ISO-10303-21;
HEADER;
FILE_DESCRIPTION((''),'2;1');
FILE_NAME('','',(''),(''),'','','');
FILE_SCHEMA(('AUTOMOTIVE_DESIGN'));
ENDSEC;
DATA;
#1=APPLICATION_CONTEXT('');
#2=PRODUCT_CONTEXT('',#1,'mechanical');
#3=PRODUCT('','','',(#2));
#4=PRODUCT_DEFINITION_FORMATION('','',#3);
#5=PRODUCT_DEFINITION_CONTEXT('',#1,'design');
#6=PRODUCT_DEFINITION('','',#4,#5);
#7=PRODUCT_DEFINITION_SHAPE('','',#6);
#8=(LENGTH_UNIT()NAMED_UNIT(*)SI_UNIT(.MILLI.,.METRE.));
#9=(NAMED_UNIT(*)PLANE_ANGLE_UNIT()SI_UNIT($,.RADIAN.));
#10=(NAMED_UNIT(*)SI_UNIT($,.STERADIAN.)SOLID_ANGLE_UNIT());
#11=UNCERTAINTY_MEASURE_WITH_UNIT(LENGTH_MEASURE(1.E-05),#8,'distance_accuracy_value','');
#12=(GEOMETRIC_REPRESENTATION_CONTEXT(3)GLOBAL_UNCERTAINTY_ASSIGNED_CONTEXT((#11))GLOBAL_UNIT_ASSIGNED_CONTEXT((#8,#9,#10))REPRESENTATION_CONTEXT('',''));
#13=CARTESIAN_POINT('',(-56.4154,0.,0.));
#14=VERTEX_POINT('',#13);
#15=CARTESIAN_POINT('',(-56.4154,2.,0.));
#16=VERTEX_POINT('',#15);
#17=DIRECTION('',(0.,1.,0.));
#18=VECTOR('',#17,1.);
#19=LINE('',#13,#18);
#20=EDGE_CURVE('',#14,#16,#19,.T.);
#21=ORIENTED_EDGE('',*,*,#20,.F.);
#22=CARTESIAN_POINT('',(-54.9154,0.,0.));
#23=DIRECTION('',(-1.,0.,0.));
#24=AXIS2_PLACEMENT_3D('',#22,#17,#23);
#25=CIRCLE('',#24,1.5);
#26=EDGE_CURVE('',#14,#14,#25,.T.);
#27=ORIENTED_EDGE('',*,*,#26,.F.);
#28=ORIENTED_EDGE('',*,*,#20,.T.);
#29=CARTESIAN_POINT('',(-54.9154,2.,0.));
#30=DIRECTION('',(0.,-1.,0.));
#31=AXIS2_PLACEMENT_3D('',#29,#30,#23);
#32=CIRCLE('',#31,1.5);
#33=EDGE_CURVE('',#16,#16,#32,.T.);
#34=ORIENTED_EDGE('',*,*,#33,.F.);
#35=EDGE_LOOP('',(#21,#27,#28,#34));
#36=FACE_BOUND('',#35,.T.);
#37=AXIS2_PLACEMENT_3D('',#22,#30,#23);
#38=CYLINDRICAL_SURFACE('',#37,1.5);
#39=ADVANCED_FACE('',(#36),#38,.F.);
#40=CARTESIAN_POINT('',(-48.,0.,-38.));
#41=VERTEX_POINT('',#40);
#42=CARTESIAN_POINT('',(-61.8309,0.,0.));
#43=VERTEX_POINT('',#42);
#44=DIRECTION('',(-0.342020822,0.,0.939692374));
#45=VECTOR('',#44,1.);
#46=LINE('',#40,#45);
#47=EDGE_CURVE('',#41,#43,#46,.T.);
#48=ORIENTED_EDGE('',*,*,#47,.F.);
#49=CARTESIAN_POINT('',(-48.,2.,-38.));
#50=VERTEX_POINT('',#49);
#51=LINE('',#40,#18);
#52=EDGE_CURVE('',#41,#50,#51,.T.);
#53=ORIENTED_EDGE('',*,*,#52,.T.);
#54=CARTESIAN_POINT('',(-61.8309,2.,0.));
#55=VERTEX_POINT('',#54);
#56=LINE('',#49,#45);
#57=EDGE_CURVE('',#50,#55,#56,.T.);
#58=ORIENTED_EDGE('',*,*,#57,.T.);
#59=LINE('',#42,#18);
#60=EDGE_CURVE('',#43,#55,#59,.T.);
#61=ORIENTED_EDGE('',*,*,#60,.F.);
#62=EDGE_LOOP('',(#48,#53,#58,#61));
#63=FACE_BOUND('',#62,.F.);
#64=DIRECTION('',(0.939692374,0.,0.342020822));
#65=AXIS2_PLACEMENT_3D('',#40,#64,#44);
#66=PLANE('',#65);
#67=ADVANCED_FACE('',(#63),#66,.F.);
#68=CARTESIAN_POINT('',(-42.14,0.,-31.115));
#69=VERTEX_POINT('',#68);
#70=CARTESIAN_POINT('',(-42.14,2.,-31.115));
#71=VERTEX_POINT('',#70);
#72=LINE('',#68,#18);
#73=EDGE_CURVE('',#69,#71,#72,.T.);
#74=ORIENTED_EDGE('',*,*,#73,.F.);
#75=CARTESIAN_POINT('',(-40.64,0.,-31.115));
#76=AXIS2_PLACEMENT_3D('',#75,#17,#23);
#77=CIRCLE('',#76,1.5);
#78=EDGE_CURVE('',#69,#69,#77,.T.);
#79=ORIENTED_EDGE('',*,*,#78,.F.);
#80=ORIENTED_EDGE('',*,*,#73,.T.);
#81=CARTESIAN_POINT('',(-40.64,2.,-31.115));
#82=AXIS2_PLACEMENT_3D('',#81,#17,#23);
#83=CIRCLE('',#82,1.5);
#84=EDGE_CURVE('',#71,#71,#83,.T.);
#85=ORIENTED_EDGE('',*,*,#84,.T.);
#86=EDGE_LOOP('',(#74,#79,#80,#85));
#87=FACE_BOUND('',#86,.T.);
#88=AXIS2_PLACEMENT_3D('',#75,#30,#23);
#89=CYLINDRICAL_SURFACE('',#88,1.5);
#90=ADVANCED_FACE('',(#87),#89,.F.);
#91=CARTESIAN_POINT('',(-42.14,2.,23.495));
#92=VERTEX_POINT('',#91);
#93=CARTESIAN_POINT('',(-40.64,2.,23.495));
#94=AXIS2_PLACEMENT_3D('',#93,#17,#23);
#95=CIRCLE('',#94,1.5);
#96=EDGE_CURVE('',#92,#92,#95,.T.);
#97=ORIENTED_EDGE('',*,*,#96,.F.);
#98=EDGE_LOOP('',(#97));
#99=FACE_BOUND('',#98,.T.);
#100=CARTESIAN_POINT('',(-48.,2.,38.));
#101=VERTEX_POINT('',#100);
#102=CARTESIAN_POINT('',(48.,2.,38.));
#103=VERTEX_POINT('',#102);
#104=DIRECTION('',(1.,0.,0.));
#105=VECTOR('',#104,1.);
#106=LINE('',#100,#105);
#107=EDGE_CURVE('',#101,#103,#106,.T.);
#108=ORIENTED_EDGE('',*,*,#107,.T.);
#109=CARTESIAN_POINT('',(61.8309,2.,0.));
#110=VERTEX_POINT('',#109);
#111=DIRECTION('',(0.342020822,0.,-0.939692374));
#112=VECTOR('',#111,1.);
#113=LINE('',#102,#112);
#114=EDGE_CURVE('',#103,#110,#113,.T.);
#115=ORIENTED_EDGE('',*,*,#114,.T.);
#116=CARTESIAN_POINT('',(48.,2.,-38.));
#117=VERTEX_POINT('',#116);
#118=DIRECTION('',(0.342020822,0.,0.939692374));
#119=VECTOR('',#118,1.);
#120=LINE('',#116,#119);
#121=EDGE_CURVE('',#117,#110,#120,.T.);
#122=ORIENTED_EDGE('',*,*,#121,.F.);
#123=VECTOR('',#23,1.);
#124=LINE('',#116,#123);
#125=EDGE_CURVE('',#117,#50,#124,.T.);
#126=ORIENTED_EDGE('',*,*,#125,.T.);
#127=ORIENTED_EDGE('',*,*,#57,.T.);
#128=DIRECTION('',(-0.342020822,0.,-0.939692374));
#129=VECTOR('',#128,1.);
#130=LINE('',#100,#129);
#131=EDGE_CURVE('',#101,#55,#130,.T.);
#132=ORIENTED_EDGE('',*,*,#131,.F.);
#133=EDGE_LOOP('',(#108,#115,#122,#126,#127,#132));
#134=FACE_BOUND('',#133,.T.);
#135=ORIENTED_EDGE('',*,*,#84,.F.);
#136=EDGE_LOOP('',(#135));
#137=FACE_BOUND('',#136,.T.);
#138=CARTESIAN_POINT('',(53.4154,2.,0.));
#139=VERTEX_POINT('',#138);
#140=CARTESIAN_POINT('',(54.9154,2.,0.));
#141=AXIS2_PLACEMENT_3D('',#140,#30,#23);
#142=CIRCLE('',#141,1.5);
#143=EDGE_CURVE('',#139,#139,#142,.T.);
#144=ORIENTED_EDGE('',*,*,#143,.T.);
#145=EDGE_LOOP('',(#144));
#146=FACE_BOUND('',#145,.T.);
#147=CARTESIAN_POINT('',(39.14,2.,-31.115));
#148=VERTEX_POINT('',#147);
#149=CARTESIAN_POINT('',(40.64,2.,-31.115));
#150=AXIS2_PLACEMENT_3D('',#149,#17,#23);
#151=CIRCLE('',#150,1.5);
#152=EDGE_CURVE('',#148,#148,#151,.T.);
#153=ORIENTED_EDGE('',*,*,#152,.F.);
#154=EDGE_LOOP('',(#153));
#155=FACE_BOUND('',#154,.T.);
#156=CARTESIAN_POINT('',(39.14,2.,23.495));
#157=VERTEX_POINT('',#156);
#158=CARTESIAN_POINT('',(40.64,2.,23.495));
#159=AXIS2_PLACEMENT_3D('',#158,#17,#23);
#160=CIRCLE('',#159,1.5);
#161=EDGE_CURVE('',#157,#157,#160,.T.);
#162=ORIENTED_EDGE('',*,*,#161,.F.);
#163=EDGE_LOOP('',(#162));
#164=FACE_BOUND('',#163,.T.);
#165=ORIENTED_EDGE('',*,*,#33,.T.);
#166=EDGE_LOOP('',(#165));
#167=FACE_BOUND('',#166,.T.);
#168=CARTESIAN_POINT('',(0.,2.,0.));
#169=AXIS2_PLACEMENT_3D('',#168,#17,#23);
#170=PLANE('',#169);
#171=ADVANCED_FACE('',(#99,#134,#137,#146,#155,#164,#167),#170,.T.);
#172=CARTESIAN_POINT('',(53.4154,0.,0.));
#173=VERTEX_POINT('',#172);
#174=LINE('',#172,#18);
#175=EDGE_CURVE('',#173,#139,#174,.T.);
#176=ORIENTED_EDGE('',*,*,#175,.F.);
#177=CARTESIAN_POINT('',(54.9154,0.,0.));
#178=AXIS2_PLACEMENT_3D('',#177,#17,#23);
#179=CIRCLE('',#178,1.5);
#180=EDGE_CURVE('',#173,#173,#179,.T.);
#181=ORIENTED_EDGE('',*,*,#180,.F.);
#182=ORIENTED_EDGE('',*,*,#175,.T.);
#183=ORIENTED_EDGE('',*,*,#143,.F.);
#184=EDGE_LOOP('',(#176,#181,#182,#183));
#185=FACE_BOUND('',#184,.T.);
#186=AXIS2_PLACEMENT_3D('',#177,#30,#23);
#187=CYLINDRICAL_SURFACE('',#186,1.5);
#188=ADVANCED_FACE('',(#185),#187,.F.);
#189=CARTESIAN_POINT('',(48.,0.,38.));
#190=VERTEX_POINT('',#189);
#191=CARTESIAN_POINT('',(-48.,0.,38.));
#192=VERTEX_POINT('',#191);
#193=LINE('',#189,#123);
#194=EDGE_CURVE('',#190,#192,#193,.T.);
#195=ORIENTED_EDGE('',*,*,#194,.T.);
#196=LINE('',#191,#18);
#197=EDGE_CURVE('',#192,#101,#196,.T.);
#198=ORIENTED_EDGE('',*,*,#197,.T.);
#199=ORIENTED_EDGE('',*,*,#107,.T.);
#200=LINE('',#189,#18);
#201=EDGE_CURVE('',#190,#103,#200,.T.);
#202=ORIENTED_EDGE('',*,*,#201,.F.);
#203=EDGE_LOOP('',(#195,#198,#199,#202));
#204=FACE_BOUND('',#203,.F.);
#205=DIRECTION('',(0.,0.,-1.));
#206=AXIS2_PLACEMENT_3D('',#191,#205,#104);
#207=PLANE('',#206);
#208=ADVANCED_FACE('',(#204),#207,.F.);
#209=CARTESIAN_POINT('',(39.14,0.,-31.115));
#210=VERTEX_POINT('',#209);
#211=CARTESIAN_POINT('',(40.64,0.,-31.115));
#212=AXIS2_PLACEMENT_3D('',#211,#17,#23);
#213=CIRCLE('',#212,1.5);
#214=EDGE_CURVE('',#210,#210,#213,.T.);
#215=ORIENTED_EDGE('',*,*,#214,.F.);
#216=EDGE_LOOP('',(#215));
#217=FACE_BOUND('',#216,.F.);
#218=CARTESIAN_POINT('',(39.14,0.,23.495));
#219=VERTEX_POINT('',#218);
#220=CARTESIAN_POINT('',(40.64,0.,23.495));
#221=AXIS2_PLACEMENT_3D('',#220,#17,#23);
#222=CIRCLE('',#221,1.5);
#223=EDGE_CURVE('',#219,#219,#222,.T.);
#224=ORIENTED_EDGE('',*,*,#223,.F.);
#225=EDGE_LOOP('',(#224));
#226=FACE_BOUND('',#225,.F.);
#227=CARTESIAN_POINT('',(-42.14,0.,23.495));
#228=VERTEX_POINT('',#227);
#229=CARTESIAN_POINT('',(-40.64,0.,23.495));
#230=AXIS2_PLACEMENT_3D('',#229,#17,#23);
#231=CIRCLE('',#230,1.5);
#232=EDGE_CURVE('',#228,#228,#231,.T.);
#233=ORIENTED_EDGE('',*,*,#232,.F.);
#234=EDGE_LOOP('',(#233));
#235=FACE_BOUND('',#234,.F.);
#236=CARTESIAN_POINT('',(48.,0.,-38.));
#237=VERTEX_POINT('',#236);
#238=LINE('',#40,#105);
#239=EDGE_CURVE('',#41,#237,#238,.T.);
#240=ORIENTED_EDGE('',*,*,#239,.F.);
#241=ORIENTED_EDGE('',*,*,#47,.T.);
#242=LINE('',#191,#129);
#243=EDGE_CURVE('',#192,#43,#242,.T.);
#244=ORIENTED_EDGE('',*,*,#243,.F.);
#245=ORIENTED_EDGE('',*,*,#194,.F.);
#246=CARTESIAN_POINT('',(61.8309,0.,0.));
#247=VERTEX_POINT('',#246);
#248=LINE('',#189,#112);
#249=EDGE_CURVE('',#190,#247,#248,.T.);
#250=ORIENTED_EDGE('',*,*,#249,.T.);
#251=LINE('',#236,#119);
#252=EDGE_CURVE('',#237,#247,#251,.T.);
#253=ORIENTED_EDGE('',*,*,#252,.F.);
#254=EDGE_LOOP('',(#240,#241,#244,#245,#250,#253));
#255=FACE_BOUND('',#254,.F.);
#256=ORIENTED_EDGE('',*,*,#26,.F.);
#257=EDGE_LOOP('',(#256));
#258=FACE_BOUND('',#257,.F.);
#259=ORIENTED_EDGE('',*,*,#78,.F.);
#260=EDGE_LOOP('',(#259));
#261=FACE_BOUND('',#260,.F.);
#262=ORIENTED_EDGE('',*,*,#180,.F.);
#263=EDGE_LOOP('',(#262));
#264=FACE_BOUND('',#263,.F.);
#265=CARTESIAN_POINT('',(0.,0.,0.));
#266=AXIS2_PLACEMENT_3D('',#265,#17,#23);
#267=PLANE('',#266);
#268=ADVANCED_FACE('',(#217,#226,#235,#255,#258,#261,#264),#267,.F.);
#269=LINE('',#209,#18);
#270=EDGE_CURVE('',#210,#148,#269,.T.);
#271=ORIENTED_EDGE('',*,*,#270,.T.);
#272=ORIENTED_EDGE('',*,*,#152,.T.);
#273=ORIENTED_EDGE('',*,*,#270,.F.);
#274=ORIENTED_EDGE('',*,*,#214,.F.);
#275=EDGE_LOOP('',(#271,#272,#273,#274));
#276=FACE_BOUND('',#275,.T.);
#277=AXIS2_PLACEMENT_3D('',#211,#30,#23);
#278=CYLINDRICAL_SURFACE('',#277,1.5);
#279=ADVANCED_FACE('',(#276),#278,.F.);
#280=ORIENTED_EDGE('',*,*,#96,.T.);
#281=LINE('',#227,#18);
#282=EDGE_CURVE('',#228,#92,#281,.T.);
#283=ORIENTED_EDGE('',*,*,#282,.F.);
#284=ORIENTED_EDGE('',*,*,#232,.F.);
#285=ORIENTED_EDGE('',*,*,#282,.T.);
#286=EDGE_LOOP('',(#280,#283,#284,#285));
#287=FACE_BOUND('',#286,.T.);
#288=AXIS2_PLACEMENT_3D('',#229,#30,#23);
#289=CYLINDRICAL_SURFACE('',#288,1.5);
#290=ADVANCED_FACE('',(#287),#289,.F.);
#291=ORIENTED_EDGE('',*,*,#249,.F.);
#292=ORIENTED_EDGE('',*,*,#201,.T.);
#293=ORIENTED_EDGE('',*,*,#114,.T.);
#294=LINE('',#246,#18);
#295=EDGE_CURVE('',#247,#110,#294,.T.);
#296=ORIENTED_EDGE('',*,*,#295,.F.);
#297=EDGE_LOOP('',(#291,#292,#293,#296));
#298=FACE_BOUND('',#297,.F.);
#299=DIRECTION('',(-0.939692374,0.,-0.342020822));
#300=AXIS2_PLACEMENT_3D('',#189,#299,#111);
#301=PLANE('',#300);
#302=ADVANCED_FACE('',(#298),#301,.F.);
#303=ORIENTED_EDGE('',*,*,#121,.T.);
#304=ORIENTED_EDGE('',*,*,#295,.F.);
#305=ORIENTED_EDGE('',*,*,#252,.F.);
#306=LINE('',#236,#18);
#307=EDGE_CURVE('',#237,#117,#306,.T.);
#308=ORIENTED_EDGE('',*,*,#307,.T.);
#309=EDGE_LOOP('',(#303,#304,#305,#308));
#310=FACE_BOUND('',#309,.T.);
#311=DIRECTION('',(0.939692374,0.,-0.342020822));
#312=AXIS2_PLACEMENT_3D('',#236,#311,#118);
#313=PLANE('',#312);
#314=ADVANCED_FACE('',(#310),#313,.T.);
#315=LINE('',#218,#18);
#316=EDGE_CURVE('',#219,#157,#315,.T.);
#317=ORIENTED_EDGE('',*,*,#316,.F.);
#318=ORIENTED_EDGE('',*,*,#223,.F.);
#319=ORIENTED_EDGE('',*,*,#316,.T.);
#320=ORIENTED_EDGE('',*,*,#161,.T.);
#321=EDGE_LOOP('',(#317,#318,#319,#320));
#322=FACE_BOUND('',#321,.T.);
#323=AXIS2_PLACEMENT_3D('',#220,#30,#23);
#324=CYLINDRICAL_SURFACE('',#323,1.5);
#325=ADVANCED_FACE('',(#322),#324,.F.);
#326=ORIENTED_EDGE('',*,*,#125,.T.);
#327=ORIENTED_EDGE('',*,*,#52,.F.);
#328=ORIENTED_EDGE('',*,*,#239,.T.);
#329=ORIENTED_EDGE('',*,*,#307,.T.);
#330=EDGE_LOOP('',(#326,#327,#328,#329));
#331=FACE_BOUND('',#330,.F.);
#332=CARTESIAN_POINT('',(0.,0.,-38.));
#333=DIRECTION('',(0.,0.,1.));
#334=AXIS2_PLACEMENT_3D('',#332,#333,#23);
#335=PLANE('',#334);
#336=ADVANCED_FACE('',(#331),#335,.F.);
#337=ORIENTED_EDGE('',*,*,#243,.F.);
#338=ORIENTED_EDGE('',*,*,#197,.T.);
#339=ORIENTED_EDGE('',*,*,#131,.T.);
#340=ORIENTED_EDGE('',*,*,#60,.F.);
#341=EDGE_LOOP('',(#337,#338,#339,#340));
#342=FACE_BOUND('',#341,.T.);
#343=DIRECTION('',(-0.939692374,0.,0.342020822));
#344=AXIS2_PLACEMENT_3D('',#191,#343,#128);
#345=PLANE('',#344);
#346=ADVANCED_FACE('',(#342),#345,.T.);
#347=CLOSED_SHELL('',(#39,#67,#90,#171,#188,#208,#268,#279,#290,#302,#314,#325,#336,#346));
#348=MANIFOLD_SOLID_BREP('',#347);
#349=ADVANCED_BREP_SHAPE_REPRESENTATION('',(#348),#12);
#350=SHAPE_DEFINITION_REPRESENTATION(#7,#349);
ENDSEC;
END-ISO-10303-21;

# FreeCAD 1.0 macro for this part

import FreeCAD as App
import Part
import Sketcher

V = App.Vector
Q = App.Units.Quantity

doc = App.newDocument("Part")
body = doc.addObject("PartDesign::Body", "Body")

# Sketch on XZ plane
sketch1 = body.newObject("Sketcher::SketchObject", "Sketch")
sketch1.AttachmentSupport = (doc.getObject("XZ_Plane"), [""])
sketch1.MapMode = "FlatFace"
sketch1.addGeometry(Part.LineSegment(V(-48, 38, 0), V(48, 38, 0)), False)
sketch1.addGeometry(Part.LineSegment(V(48, 38, 0), V(61.8, 0, 0)), False)
sketch1.addGeometry(Part.LineSegment(V(61.8, 0, 0), V(48, -38, 0)), False)
sketch1.addGeometry(Part.LineSegment(V(48, -38, 0), V(-48, -38, 0)), False)
sketch1.addGeometry(Part.LineSegment(V(-48, -38, 0), V(-61.8, 0, 0)), False)
sketch1.addGeometry(Part.LineSegment(V(-61.8, 0, 0), V(-48, 38, 0)), False)
sketch1.addGeometry(Part.Circle(V(-40.6, 23.5, 0), V(0, 0, 1), 1.5), False)
sketch1.addGeometry(Part.Circle(V(-40.6, -31.1, 0), V(0, 0, 1), 1.5), False)
sketch1.addGeometry(Part.Circle(V(40.6, 23.5, 0), V(0, 0, 1), 1.5), False)
sketch1.addGeometry(Part.Circle(V(-54.9, 0, 0), V(0, 0, 1), 1.5), False)
sketch1.addGeometry(Part.Circle(V(40.6, -31.1, 0), V(0, 0, 1), 1.5), False)
sketch1.addGeometry(Part.Circle(V(54.9, 0, 0), V(0, 0, 1), 1.5), False)
sketch1.addConstraint(Sketcher.Constraint("Coincident", 0, 2, 1, 1))
sketch1.addConstraint(Sketcher.Constraint("Coincident", 1, 2, 2, 1))
sketch1.addConstraint(Sketcher.Constraint("Coincident", 2, 2, 3, 1))
sketch1.addConstraint(Sketcher.Constraint("Coincident", 3, 2, 4, 1))
sketch1.addConstraint(Sketcher.Constraint("Coincident", 4, 2, 5, 1))
sketch1.addConstraint(Sketcher.Constraint("Coincident", 5, 2, 0, 1))
sketch1.addConstraint(Sketcher.Constraint("Horizontal", 0))
sketch1.addConstraint(Sketcher.Constraint("Horizontal", 3))
sketch1.addConstraint(Sketcher.Constraint("Equal", 6, 7))
sketch1.addConstraint(Sketcher.Constraint("Equal", 7, 8))
sketch1.addConstraint(Sketcher.Constraint("Equal", 8, 9))
sketch1.addConstraint(Sketcher.Constraint("Equal", 9, 10))
sketch1.addConstraint(Sketcher.Constraint("Equal", 10, 11))
sketch1.addConstraint(Sketcher.Constraint("Symmetric", 9, 3, 11, 3, -1, 1))
sketch1.addConstraint(Sketcher.Constraint("Symmetric", 0, 2, 3, 2, -1, 1))
sketch1.addConstraint(Sketcher.Constraint("Symmetric", 1, 2, 4, 2, -1, 1))
sketch1.addConstraint(Sketcher.Constraint("Symmetric", 6, 3, 8, 3, -2))
sketch1.addConstraint(Sketcher.Constraint("Symmetric", 7, 3, 10, 3, -2))
sketch1.addConstraint(Sketcher.Constraint("PointOnObject", 9, 3, -1))
sketch1.addConstraint(Sketcher.Constraint("PointOnObject", 1, 2, -1))
sketch1.addConstraint(Sketcher.Constraint("Parallel", 2, 5))
sketch1.addConstraint(Sketcher.Constraint("Vertical", 6, 3, 7, 3))
sketch1.addConstraint(Sketcher.Constraint("Vertical", 0, 2, 2, 2))
sketch1.addConstraint(Sketcher.Constraint("Diameter", 6, Q("3 mm")))
sketch1.addConstraint(Sketcher.Constraint("DistanceX", 0, 1, 0, 2, Q("96 mm")))
sketch1.addConstraint(Sketcher.Constraint("Angle", 2, Q("-110 deg")))
sketch1.addConstraint(Sketcher.Constraint("DistanceY", 2, 2, 0, 2, Q("76 mm")))
sketch1.addConstraint(Sketcher.Constraint("DistanceX", 6, 3, -1, 1, Q("40.64 mm")))
sketch1.addConstraint(Sketcher.Constraint("DistanceY", 7, 3, 6, 3, Q("54.61 mm")))
sketch1.addConstraint(Sketcher.Constraint("DistanceY", -1, 1, 6, 3, Q("23.495 mm")))
sketch1.addConstraint(Sketcher.Constraint("DistanceX", 9, 3, -1, 1, Q("54.9154 mm")))
pad1 = body.newObject("PartDesign::Pad", "Pad")
pad1.Profile = sketch1
pad1.Length = 2
pad1.Reversed = True

doc.recompute()
